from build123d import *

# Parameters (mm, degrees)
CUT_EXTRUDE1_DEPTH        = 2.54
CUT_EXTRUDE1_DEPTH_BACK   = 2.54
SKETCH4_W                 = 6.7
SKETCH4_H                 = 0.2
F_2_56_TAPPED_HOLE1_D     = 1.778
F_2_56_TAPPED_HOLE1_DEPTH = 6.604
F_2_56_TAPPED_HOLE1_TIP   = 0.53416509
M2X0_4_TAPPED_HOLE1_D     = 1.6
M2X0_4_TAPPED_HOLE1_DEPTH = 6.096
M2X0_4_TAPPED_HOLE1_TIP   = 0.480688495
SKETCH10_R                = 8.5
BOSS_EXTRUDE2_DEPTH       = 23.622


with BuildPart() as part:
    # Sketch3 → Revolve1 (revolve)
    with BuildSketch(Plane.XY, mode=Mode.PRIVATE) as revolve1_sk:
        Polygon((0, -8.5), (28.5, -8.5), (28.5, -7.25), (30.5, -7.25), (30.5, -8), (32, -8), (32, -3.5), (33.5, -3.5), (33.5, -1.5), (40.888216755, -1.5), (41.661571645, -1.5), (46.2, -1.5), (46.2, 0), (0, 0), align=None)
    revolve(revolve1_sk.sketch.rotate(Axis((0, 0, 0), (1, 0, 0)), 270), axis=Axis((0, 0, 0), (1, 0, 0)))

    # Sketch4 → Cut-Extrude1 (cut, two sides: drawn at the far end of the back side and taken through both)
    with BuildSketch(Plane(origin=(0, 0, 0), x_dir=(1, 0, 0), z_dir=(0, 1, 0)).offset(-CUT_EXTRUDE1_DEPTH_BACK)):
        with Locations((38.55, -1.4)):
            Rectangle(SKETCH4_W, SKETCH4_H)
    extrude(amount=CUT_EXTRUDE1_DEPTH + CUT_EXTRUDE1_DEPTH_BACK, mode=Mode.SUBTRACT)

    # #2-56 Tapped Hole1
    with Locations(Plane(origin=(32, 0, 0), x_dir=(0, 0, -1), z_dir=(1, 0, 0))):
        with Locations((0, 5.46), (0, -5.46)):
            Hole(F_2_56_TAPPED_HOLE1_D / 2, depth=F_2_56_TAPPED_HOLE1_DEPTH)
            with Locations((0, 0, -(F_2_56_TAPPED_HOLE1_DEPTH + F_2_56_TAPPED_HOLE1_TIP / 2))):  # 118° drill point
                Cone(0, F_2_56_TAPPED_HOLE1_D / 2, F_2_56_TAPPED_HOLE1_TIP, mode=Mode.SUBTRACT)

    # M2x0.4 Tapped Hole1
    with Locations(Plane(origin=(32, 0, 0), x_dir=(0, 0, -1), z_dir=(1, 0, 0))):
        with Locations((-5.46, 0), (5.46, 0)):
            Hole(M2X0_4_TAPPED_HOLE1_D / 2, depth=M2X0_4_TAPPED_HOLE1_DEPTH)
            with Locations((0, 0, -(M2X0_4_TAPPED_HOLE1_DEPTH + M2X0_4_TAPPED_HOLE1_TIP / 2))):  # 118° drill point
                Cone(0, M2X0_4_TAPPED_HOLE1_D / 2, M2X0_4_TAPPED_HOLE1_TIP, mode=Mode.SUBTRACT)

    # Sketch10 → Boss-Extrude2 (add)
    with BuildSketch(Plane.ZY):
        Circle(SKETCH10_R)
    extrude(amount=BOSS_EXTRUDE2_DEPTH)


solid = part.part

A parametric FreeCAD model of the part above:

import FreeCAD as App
import Part
import Sketcher
from FreeCAD import Vector
Q = App.Units.Quantity


def add_polygon(sketch, points):
    """Adds a closed chain of lines whose ends are joined by coincident constraints."""
    first, n = sketch.GeometryCount, len(points)
    for a, b in zip(points, points[1:] + points[:1]):
        sketch.addGeometry(Part.LineSegment(App.Vector(*a, 0), App.Vector(*b, 0)), False)
    for i in range(n):
        sketch.addConstraint(Sketcher.Constraint("Coincident", first + i, 2, first + (i + 1) % n, 1))

doc = App.newDocument("Part")
body = doc.addObject("PartDesign::Body", "Body")

# Sketch on XY plane
sketch1 = body.newObject("Sketcher::SketchObject", "Sketch")
sketch1.AttachmentSupport = (doc.getObject("XY_Plane"), [""])
sketch1.MapMode = "FlatFace"
add_polygon(sketch1, [(0, -8.5), (28.5, -8.5), (28.5, -7.2), (30.5, -7.2), (30.5, -8), (32, -8), (32, -3.5), (33.5, -3.5), (33.5, -1.5), (46.2, -1.5), (46.2, 0), (0, 0)])  # lines 0-11
sketch1.addConstraint([
    Sketcher.Constraint("Horizontal", 0),
    Sketcher.Constraint("Vertical", 1),
    Sketcher.Constraint("Horizontal", 2),
    Sketcher.Constraint("Vertical", 3),
    Sketcher.Constraint("Horizontal", 4),
    Sketcher.Constraint("Vertical", 5),
    Sketcher.Constraint("Horizontal", 6),
    Sketcher.Constraint("Vertical", 7),
    Sketcher.Constraint("Horizontal", 8),
    Sketcher.Constraint("Vertical", 9),
    Sketcher.Constraint("Horizontal", 10),
    Sketcher.Constraint("Vertical", 11),
    Sketcher.Constraint("Coincident", 10, 2, -1, 1),
    Sketcher.Constraint("Equal", 4, 6),
    Sketcher.Constraint("Equal", 2, 7),
    Sketcher.Constraint("Equal", 6, 9),
    Sketcher.Constraint("DistanceX", 2, 1, 2, 2, Q("2 mm")),
    Sketcher.Constraint("DistanceX", 0, 1, 0, 2, Q("28.5 mm")),
    Sketcher.Constraint("DistanceX", 4, 1, 4, 2, Q("1.5 mm")),
    Sketcher.Constraint("DistanceX", 8, 1, 8, 2, Q("12.7 mm")),
    Sketcher.Constraint("DistanceY", 5, 1, 5, 2, Q("4.5 mm")),
    Sketcher.Constraint("DistanceY", 11, 2, 11, 1, Q("8.5 mm")),
    Sketcher.Constraint("DistanceY", 1, 1, 1, 2, Q("1.25 mm")),
])
revolution = body.newObject("PartDesign::Revolution", "Revolution")
revolution.Profile = sketch1
revolution.ReferenceAxis = (sketch1, ["H_Axis"])
revolution.Angle = 360

# Sketch on XZ plane
sketch2 = body.newObject("Sketcher::SketchObject", "Sketch001")
sketch2.AttachmentSupport = (doc.getObject("XZ_Plane"), [""])
sketch2.MapMode = "FlatFace"
add_polygon(sketch2, [(35.2, 1.3), (35.2, 1.5), (41.9, 1.5), (41.9, 1.3)])  # lines 0-3
sketch2.addConstraint([
    Sketcher.Constraint("Vertical", 0),
    Sketcher.Constraint("Horizontal", 1),
    Sketcher.Constraint("Vertical", 2),
    Sketcher.Constraint("Horizontal", 3),
    Sketcher.Constraint("DistanceX", 1, 1, 1, 2, Q("6.7 mm")),
    Sketcher.Constraint("DistanceY", 0, 1, 0, 2, Q("0.2 mm")),
    Sketcher.Constraint("DistanceX", -1, 1, 0, 2, Q("35.2 mm")),
    Sketcher.Constraint("DistanceY", -1, 1, 0, 2, Q("1.5 mm")),
])
pocket1 = body.newObject("PartDesign::Pocket", "Pocket")
pocket1.Profile = sketch2
pocket1.Type = "ThroughAll"
pocket1.Midplane = True

# Sketch on YZ plane
sketch3 = body.newObject("Sketcher::SketchObject", "Sketch002")
sketch3.AttachmentSupport = (doc.getObject("YZ_Plane"), [""])
sketch3.MapMode = "FlatFace"
sketch3.AttachmentOffset = App.Placement(Vector(0, 0, 32), App.Rotation())
sketch3.addGeometry([
    Part.Circle(Vector(5.5, 0, 0), Vector(0, 0, 1), 0.9),
    Part.Circle(Vector(-5.5, 0, 0), Vector(0, 0, 1), 0.9),
], False)
sketch3.addConstraint([
    Sketcher.Constraint("Equal", 0, 1),
    Sketcher.Constraint("Symmetric", 0, 3, 1, 3, -1, 1),
    Sketcher.Constraint("PointOnObject", 0, 3, -1),
    Sketcher.Constraint("Diameter", 0, Q("1.778 mm")),
    Sketcher.Constraint("DistanceX", -1, 1, 0, 3, Q("5.46 mm")),
])
doc.recompute()
hole = body.newObject("PartDesign::Hole", "Hole")
hole.Profile = sketch3
hole.ThreadType = "None"
hole.Diameter = 1.778
hole.DepthType = "Dimension"
hole.Depth = 6.604
hole.DrillPoint = "Angled"
hole.DrillPointAngle = 118

# Sketch on YZ plane
sketch4 = body.newObject("Sketcher::SketchObject", "Sketch003")
sketch4.AttachmentSupport = (doc.getObject("YZ_Plane"), [""])
sketch4.MapMode = "FlatFace"
sketch4.AttachmentOffset = App.Placement(Vector(0, 0, 32), App.Rotation())
sketch4.addGeometry([
    Part.Circle(Vector(0, 5.5, 0), Vector(0, 0, 1), 0.8),
    Part.Circle(Vector(0, -5.5, 0), Vector(0, 0, 1), 0.8),
], False)
sketch4.addConstraint([
    Sketcher.Constraint("Equal", 0, 1),
    Sketcher.Constraint("Symmetric", 0, 3, 1, 3, -1, 1),
    Sketcher.Constraint("PointOnObject", 0, 3, -2),
    Sketcher.Constraint("Diameter", 0, Q("1.6 mm")),
    Sketcher.Constraint("DistanceY", -1, 1, 0, 3, Q("5.46 mm")),
])
doc.recompute()
hole2 = body.newObject("PartDesign::Hole", "Hole001")
hole2.Profile = sketch4
hole2.ThreadType = "None"
hole2.Diameter = 1.6
hole2.DepthType = "Dimension"
hole2.Depth = 6.096
hole2.DrillPoint = "Angled"
hole2.DrillPointAngle = 118

# Sketch on YZ plane
sketch5 = body.newObject("Sketcher::SketchObject", "Sketch004")
sketch5.AttachmentSupport = (doc.getObject("YZ_Plane"), [""])
sketch5.MapMode = "FlatFace"
sketch5.addGeometry(Part.Circle(Vector(0, 0, 0), Vector(0, 0, 1), 8), False)
sketch5.addConstraint([
    Sketcher.Constraint("Coincident", 0, 3, -1, 1),
    Sketcher.Constraint("Diameter", 0, Q("17 mm")),
])
pad1 = body.newObject("PartDesign::Pad", "Pad")
pad1.Profile = sketch5
pad1.Length = 23.622
pad1.Reversed = True

doc.recompute()
